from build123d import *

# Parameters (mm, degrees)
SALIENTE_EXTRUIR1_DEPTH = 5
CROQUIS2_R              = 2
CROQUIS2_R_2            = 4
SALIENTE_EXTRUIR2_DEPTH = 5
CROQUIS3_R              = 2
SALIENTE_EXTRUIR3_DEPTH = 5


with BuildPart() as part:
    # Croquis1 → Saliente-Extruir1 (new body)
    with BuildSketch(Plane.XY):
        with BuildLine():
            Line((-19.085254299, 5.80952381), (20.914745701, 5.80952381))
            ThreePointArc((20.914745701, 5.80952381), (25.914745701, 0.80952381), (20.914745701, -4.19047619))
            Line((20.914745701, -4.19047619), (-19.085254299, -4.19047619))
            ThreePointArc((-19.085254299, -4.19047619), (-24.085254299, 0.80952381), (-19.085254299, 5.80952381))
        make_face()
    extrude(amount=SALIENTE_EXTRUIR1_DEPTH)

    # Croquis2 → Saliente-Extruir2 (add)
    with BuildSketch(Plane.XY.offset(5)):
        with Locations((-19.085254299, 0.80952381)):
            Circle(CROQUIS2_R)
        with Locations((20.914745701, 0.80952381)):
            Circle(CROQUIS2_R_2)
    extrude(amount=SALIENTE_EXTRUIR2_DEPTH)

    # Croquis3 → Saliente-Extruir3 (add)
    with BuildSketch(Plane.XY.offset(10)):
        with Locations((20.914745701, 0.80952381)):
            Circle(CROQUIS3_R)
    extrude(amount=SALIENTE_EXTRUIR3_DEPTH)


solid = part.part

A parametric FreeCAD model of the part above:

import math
import FreeCAD as App
import Part
import Sketcher

doc = App.newDocument("Part")
body = doc.addObject("PartDesign::Body", "Body")

# Sketch on XY plane
sketch1 = body.newObject("Sketcher::SketchObject", "Sketch")
sketch1.AttachmentSupport = (doc.getObject("XY_Plane"), [""])
sketch1.MapMode = "FlatFace"
sketch1.addGeometry([
    Part.LineSegment(App.Vector(21, 6, 0), App.Vector(-19, 6, 0)),
    Part.ArcOfCircle(Part.Circle(App.Vector(-19, 1, 0), App.Vector(0, 0, 1), 5), math.radians(90), math.radians(270)),
    Part.LineSegment(App.Vector(-19, -4, 0), App.Vector(21, -4, 0)),
    Part.ArcOfCircle(Part.Circle(App.Vector(21, 1, 0), App.Vector(0, 0, 1), 5), math.radians(-90), math.radians(90)),
], False)
sketch1.addConstraint([
    Sketcher.Constraint("Tangent", 0, 2, 1, 1),
    Sketcher.Constraint("Tangent", 1, 2, 2, 1),
    Sketcher.Constraint("Tangent", 2, 2, 3, 1),
    Sketcher.Constraint("Tangent", 3, 2, 0, 1),
    Sketcher.Constraint("Horizontal", 0),
    Sketcher.Constraint("Horizontal", 2),
    Sketcher.Constraint("Radius", 1, 5.0),
    Sketcher.Constraint("DistanceX", 0, 2, 0, 1, 40.0),
    Sketcher.Constraint("DistanceX", 1, 3, -1, 1, 19.085254),
    Sketcher.Constraint("DistanceY", -1, 1, 1, 3, 0.809524),
])
pad1 = body.newObject("PartDesign::Pad", "Pad")
pad1.Profile = sketch1
pad1.Length = 5

# Sketch on XY plane
sketch2 = body.newObject("Sketcher::SketchObject", "Sketch001")
sketch2.AttachmentSupport = (doc.getObject("XY_Plane"), [""])
sketch2.MapMode = "FlatFace"
sketch2.AttachmentOffset = App.Placement(App.Vector(0, 0, 5), App.Rotation())
sketch2.addGeometry([
    Part.Circle(App.Vector(-19.1, 0.8, 0), App.Vector(0, 0, 1), 2),
    Part.Circle(App.Vector(20.9, 0.8, 0), App.Vector(0, 0, 1), 4),
], False)
sketch2.addConstraint([
    Sketcher.Constraint("Horizontal", 0, 3, 1, 3),
    Sketcher.Constraint("Diameter", 0, 4.0),
    Sketcher.Constraint("Diameter", 1, 8.0),
    Sketcher.Constraint("DistanceX", 0, 3, 1, 3, 40.0),
    Sketcher.Constraint("DistanceX", 0, 3, -1, 1, 19.085254),
    Sketcher.Constraint("DistanceY", -1, 1, 0, 3, 0.809524),
])
pad2 = body.newObject("PartDesign::Pad", "Pad001")
pad2.Profile = sketch2
pad2.Length = 5

# Sketch on XY plane
sketch3 = body.newObject("Sketcher::SketchObject", "Sketch002")
sketch3.AttachmentSupport = (doc.getObject("XY_Plane"), [""])
sketch3.MapMode = "FlatFace"
sketch3.AttachmentOffset = App.Placement(App.Vector(0, 0, 10), App.Rotation())
sketch3.addGeometry(Part.Circle(App.Vector(20.9, 0.8, 0), App.Vector(0, 0, 1), 2), False)
sketch3.addConstraint([
    Sketcher.Constraint("Diameter", 0, 4.0),
    Sketcher.Constraint("DistanceX", -1, 1, 0, 3, 20.914746),
    Sketcher.Constraint("DistanceY", -1, 1, 0, 3, 0.809524),
])
pad3 = body.newObject("PartDesign::Pad", "Pad002")
pad3.Profile = sketch3
pad3.Length = 5

doc.recompute()
